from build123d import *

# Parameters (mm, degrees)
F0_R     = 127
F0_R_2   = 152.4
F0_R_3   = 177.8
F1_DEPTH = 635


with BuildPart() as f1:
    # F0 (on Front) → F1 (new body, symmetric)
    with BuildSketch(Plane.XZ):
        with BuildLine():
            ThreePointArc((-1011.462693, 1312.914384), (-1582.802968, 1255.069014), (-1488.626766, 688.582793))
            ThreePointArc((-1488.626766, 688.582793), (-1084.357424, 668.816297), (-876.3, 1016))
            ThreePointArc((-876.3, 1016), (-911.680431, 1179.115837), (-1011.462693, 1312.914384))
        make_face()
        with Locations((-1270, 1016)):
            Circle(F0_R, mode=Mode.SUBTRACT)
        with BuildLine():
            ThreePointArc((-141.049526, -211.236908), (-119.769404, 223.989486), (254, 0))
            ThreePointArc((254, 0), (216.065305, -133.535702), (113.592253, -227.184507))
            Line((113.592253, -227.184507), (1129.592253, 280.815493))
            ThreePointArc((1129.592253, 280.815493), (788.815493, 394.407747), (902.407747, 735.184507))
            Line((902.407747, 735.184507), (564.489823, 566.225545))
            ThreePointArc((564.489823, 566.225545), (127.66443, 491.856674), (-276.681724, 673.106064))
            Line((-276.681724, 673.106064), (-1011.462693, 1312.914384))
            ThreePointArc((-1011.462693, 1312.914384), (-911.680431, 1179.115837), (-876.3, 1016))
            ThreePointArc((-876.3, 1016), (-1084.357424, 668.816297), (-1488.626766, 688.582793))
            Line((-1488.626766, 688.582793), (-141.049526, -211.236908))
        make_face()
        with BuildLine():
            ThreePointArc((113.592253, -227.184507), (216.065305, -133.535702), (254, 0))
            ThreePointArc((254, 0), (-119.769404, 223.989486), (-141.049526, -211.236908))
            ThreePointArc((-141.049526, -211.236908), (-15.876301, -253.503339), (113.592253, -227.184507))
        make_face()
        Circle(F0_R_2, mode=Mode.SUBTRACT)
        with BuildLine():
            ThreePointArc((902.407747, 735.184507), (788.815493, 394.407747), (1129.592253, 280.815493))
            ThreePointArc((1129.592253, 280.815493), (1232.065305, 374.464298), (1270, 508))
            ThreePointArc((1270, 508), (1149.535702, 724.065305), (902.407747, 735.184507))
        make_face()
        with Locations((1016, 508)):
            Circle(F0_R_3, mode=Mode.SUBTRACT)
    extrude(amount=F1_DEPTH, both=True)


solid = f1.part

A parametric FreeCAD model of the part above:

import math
import FreeCAD as App
import Part
import Sketcher

V = App.Vector
Q = App.Units.Quantity

doc = App.newDocument("Part")
body = doc.addObject("PartDesign::Body", "Body")

sketch1 = body.newObject("Sketcher::SketchObject", "Sketch")
sketch1.AttachmentSupport = (doc.getObject("XZ_Plane"), [""])
sketch1.MapMode = "FlatFace"
sketch1.addGeometry(Part.ArcOfCircle(Part.Circle(V(-1270, 1016, 0), V(0, 0, 1), 394), math.radians(49), math.radians(236)), False)
sketch1.addGeometry(Part.LineSegment(V(-1489, 689, 0), V(-141, -211, 0)), False)
sketch1.addGeometry(Part.ArcOfCircle(Part.Circle(V(0, 0, 0), V(0, 0, 1), 254), math.radians(-124), math.radians(-63)), False)
sketch1.addGeometry(Part.LineSegment(V(114, -227, 0), V(1130, 281, 0)), False)
sketch1.addGeometry(Part.ArcOfCircle(Part.Circle(V(1016, 508, 0), V(0, 0, 1), 254), math.radians(-63), math.radians(0)), False)
sketch1.addGeometry(Part.ArcOfCircle(Part.Circle(V(1016, 508, 0), V(0, 0, 1), 254), math.radians(0), math.radians(117)), False)
sketch1.addGeometry(Part.LineSegment(V(902, 735, 0), V(564, 566, 0)), False)
sketch1.addGeometry(Part.ArcOfCircle(Part.Circle(V(224, 1248, 0), V(0, 0, 1), 762), math.radians(-131), math.radians(-63)), False)
sketch1.addGeometry(Part.LineSegment(V(-277, 673, 0), V(-1011, 1313, 0)), False)
sketch1.addGeometry(Part.Circle(V(0, 0, 0), V(0, 0, 1), 152), False)
sketch1.addGeometry(Part.Circle(V(-1270, 1016, 0), V(0, 0, 1), 127), False)
sketch1.addGeometry(Part.Circle(V(1016, 508, 0), V(0, 0, 1), 178), False)
sketch1.addConstraint(Sketcher.Constraint("Tangent", 0, 2, 1, 1))
sketch1.addConstraint(Sketcher.Constraint("Tangent", 1, 2, 2, 1))
sketch1.addConstraint(Sketcher.Constraint("Tangent", 2, 2, 3, 1))
sketch1.addConstraint(Sketcher.Constraint("Tangent", 3, 2, 4, 1))
sketch1.addConstraint(Sketcher.Constraint("Tangent", 4, 2, 5, 1))
sketch1.addConstraint(Sketcher.Constraint("Tangent", 5, 2, 6, 1))
sketch1.addConstraint(Sketcher.Constraint("Tangent", 6, 2, 7, 2))
sketch1.addConstraint(Sketcher.Constraint("Tangent", 7, 1, 8, 1))
sketch1.addConstraint(Sketcher.Constraint("Tangent", 8, 2, 0, 1))
sketch1.addConstraint(Sketcher.Constraint("Coincident", 2, 3, -1, 1))
sketch1.addConstraint(Sketcher.Constraint("Coincident", 9, 3, -1, 1))
sketch1.addConstraint(Sketcher.Constraint("Coincident", 10, 3, 0, 3))
sketch1.addConstraint(Sketcher.Constraint("Coincident", 11, 3, 4, 3))
sketch1.addConstraint(Sketcher.Constraint("Equal", 2, 4))
sketch1.addConstraint(Sketcher.Constraint("Parallel", 3, 6))
sketch1.addConstraint(Sketcher.Constraint("Horizontal", 11, 3, 4, 2))
sketch1.addConstraint(Sketcher.Constraint("Diameter", 9, Q("12 in")))
sketch1.addConstraint(Sketcher.Constraint("Diameter", 10, Q("10 in")))
sketch1.addConstraint(Sketcher.Constraint("Diameter", 11, Q("14 in")))
sketch1.addConstraint(Sketcher.Constraint("Radius", 2, Q("10.0000002 in")))
sketch1.addConstraint(Sketcher.Constraint("Radius", 5, Q("10 in")))
sketch1.addConstraint(Sketcher.Constraint("Radius", 7, Q("30 in")))
sketch1.addConstraint(Sketcher.Constraint("Radius", 0, Q("15.5 in")))
sketch1.addConstraint(Sketcher.Constraint("DistanceX", 0, 3, -1, 1, Q("50 in")))
sketch1.addConstraint(Sketcher.Constraint("DistanceY", -1, 1, 0, 3, Q("40 in")))
sketch1.addConstraint(Sketcher.Constraint("DistanceX", -1, 1, 4, 3, Q("39.9999998 in")))
sketch1.addConstraint(Sketcher.Constraint("DistanceY", -1, 1, 4, 3, Q("20.0000001 in")))
sketch1.addConstraint(Sketcher.Constraint("Distance", 8, Q("974.298598 mm")))
pad1 = body.newObject("PartDesign::Pad", "Pad")
pad1.Profile = sketch1
pad1.Length = Q("50 in")
pad1.Midplane = True

doc.recompute()
